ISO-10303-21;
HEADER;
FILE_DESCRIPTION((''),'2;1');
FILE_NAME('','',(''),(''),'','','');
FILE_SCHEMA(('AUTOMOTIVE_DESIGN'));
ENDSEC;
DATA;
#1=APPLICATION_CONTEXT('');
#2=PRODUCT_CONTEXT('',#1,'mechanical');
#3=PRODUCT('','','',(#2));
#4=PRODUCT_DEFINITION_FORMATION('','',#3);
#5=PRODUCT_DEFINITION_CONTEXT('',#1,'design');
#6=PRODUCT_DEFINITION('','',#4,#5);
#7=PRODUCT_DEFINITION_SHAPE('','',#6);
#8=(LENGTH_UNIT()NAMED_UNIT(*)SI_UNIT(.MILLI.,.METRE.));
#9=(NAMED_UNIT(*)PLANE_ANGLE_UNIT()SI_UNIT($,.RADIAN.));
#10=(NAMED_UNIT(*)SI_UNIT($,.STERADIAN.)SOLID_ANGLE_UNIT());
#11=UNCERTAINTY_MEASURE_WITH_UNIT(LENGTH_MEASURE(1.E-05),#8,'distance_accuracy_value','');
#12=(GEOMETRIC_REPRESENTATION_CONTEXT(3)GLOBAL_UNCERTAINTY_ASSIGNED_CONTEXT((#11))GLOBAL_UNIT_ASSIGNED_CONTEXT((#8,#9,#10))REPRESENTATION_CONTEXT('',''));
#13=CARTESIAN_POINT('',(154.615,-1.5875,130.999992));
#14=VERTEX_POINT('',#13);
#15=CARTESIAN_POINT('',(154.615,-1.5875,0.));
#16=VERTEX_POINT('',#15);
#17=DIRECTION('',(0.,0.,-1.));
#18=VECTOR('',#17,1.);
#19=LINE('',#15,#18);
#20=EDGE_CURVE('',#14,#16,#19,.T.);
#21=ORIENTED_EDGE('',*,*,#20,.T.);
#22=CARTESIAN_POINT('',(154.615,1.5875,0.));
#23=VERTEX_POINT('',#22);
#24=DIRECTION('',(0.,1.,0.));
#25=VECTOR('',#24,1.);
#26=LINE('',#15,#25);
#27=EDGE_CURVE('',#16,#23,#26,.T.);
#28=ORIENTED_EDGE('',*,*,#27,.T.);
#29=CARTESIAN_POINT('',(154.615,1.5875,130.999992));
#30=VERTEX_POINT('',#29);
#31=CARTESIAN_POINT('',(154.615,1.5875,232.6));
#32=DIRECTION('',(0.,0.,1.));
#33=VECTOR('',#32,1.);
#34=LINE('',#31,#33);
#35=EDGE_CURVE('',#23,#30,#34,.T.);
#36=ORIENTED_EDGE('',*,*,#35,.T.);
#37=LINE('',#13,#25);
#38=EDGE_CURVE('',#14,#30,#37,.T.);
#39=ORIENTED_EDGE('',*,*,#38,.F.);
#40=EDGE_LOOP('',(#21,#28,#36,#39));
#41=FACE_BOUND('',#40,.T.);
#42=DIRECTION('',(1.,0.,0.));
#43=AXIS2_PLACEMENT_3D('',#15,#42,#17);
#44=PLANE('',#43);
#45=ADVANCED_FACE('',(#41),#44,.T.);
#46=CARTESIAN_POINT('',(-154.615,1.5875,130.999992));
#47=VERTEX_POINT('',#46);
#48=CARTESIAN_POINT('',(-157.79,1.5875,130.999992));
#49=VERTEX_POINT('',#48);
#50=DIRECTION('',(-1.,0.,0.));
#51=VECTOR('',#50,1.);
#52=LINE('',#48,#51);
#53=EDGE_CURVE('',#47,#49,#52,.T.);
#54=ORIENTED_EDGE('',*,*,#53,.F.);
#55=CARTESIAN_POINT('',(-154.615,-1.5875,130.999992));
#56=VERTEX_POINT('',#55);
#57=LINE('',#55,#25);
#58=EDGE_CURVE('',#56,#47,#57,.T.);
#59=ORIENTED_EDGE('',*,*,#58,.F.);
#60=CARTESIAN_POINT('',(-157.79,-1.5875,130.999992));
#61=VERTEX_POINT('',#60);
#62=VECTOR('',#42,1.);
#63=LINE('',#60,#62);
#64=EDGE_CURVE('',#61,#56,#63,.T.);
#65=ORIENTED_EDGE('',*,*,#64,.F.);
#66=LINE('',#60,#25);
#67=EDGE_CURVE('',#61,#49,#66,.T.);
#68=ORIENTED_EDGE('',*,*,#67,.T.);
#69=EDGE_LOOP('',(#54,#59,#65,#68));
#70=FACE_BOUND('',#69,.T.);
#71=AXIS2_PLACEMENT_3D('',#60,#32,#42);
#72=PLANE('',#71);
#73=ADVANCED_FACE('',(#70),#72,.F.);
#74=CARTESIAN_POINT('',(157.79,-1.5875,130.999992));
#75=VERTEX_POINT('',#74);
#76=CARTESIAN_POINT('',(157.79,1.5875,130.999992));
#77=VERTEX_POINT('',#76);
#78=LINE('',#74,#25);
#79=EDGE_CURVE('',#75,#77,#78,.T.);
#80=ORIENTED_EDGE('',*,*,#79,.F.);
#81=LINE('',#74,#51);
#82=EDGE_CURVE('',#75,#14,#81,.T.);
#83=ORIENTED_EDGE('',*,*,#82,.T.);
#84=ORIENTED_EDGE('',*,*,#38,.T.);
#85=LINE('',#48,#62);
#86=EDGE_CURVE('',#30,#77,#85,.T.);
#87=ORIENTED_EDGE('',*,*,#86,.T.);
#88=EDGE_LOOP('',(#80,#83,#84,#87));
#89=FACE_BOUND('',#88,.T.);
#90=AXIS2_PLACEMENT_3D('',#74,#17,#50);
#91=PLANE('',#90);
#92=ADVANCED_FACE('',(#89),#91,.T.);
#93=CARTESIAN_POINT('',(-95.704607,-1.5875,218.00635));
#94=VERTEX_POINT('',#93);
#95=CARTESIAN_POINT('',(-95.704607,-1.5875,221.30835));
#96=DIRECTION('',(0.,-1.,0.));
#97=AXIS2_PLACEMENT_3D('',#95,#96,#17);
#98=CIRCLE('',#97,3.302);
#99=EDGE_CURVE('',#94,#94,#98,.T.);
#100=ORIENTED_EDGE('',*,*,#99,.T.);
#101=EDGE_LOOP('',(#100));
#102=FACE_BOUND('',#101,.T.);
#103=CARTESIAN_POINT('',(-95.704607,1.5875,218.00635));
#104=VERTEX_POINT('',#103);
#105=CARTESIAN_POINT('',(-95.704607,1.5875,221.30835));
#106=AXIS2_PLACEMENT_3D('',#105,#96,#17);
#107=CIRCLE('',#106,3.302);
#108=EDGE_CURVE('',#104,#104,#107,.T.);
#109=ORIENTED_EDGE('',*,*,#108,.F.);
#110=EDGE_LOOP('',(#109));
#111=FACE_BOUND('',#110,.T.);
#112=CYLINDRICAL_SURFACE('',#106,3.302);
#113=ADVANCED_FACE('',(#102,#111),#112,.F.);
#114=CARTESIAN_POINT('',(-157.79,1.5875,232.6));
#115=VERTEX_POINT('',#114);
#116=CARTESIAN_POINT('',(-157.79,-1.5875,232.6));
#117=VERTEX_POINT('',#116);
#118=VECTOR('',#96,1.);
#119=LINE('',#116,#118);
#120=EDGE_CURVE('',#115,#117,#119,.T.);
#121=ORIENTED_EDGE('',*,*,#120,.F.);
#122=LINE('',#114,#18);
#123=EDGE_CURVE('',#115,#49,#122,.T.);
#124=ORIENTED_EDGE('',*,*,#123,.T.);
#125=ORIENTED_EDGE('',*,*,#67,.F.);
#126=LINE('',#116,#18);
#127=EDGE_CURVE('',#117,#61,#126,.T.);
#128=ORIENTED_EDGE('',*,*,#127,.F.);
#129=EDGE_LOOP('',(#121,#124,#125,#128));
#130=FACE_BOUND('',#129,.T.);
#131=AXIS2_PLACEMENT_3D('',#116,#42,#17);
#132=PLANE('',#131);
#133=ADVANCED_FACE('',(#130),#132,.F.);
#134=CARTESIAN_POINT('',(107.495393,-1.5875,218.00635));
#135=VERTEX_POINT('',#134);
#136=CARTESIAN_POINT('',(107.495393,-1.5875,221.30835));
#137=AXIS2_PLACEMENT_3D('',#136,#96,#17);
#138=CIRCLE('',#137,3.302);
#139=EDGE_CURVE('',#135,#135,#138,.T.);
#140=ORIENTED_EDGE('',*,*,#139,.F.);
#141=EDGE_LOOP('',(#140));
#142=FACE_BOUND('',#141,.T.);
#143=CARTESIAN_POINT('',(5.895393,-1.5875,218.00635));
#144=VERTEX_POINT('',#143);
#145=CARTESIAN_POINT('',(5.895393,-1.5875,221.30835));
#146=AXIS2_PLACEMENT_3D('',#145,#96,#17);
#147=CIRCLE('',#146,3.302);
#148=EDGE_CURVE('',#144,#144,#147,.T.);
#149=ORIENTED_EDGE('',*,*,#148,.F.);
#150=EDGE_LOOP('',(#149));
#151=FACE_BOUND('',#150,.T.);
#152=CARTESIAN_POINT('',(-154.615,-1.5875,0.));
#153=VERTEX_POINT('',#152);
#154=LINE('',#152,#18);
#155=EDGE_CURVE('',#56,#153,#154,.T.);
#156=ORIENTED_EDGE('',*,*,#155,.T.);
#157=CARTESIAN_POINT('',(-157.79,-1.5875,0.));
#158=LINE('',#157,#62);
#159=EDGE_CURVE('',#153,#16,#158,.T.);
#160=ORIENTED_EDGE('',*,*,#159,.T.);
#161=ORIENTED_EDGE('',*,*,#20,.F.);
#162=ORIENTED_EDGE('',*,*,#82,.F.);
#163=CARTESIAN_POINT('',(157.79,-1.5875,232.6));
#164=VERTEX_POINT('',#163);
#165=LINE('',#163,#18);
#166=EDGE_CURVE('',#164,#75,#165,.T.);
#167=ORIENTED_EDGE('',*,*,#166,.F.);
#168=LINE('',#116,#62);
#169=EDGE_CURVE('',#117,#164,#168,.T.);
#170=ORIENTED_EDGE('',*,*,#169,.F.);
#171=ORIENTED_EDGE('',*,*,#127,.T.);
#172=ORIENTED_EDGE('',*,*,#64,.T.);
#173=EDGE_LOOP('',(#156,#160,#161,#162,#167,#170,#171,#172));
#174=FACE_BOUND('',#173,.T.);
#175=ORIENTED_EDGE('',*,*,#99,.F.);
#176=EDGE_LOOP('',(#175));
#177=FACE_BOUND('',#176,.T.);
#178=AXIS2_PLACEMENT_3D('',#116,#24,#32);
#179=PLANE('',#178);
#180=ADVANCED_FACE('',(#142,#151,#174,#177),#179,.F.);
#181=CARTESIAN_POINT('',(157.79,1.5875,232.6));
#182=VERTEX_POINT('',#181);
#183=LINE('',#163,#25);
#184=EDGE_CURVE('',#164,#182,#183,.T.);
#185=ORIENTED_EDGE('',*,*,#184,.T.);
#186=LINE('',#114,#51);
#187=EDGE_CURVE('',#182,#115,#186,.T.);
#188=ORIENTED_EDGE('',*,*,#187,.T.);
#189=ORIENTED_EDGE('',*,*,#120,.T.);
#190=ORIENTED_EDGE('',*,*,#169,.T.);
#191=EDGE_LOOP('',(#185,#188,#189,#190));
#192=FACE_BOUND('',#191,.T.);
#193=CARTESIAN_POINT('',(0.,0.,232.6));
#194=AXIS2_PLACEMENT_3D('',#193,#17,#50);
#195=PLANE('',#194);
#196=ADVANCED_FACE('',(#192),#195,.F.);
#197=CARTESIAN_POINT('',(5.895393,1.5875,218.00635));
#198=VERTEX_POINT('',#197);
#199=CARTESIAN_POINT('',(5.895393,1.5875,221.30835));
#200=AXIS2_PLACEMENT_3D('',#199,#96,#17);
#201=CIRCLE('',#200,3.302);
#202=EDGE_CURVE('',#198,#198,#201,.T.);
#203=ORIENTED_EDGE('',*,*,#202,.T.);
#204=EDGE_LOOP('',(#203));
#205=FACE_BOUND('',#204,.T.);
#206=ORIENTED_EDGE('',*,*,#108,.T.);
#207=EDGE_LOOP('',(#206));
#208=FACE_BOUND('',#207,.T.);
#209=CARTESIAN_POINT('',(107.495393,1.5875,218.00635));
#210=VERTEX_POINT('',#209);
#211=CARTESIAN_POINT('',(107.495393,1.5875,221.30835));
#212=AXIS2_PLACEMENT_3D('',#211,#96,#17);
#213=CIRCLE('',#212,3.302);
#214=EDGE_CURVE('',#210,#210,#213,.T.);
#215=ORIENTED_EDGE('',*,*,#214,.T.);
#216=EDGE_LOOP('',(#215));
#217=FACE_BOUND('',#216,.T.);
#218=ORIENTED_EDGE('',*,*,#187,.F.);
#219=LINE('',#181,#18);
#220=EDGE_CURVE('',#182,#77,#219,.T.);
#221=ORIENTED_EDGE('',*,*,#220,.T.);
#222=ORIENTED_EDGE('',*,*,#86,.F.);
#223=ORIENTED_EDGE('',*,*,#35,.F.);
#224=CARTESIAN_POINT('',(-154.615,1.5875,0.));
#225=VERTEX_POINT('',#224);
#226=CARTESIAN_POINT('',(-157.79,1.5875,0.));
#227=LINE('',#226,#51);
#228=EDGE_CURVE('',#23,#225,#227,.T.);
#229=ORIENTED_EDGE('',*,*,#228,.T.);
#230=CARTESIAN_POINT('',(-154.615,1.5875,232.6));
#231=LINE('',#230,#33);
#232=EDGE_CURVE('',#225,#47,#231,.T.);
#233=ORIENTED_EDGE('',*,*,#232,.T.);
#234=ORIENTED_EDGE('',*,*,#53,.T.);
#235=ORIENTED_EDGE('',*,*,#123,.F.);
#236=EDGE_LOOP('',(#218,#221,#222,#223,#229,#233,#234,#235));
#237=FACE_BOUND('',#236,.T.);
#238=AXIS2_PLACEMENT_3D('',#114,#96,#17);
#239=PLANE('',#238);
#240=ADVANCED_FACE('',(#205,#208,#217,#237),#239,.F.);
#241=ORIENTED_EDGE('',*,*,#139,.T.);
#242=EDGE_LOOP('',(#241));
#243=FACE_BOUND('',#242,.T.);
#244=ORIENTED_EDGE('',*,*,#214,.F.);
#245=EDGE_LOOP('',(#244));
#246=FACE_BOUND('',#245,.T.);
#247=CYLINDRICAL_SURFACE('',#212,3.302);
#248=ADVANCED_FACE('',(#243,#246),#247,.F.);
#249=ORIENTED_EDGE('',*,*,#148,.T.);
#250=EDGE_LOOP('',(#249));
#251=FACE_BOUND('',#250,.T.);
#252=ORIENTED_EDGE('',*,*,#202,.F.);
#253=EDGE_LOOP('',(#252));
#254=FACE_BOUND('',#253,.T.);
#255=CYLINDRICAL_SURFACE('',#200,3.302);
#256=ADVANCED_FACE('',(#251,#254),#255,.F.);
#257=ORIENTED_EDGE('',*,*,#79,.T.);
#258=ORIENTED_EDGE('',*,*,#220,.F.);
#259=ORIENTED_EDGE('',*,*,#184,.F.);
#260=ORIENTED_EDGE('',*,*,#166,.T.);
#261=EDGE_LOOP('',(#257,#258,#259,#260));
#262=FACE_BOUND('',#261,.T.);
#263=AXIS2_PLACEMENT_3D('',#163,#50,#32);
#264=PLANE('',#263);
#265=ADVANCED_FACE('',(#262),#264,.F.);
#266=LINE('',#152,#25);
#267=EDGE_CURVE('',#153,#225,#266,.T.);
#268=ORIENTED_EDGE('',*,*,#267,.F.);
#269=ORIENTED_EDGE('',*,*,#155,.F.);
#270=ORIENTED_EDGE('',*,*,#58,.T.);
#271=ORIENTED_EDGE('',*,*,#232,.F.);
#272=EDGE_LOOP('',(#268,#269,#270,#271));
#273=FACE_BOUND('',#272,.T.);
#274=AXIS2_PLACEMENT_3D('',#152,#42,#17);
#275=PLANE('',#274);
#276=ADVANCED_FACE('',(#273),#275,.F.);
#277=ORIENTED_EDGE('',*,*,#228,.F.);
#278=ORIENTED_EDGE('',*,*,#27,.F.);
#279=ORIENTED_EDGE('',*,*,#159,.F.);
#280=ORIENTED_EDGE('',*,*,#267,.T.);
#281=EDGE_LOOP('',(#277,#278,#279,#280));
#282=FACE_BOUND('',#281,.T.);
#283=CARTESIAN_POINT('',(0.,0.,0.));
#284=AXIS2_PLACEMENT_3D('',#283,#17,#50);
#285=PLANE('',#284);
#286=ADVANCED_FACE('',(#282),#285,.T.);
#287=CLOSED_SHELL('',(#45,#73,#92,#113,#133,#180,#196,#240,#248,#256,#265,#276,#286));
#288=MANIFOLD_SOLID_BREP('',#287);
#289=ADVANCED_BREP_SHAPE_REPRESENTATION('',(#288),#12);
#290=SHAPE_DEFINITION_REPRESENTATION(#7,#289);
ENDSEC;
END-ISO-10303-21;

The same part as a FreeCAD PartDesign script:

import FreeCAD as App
import Part
import Sketcher

V = App.Vector
Q = App.Units.Quantity

doc = App.newDocument("Part")
params = doc.addObject("Spreadsheet::Sheet", "Params")
for row, (alias, value) in enumerate([
    ("sketch1_height", "0.125 in"),
    ("pad1_length", "232.6 mm"),
    ("sketch2_width", "0.125 in"),
    ("pocket1_length", "564.176217 mm"),
    ("sketch3_diameter", "0.26 in"),
    ("linearpattern_pitch", "4 in"),
], start=1):
    params.set(f"A{row}", alias)
    params.set(f"B{row}", "=" + value)
    params.setAlias(f"B{row}", alias)

body = doc.addObject("PartDesign::Body", "Body")

# Sketch on XY plane
sketch1 = body.newObject("Sketcher::SketchObject", "Sketch")
sketch1.AttachmentSupport = (doc.getObject("XY_Plane"), [""])
sketch1.MapMode = "FlatFace"
sketch1.addGeometry(Part.LineSegment(V(-157.8, 1.6, 0), V(-157.8, -1.6, 0)), False)
sketch1.addGeometry(Part.LineSegment(V(-157.8, -1.6, 0), V(157.8, -1.6, 0)), False)
sketch1.addGeometry(Part.LineSegment(V(157.8, -1.6, 0), V(157.8, 1.6, 0)), False)
sketch1.addGeometry(Part.LineSegment(V(157.8, 1.6, 0), V(-157.8, 1.6, 0)), False)
sketch1.addConstraint(Sketcher.Constraint("Coincident", 0, 2, 1, 1))
sketch1.addConstraint(Sketcher.Constraint("Coincident", 1, 2, 2, 1))
sketch1.addConstraint(Sketcher.Constraint("Coincident", 2, 2, 3, 1))
sketch1.addConstraint(Sketcher.Constraint("Coincident", 3, 2, 0, 1))
sketch1.addConstraint(Sketcher.Constraint("Vertical", 0))
sketch1.addConstraint(Sketcher.Constraint("Horizontal", 1))
sketch1.addConstraint(Sketcher.Constraint("Vertical", 2))
sketch1.addConstraint(Sketcher.Constraint("Horizontal", 3))
sketch1.addConstraint(Sketcher.Constraint("Symmetric", 0, 2, 2, 2, -1, 1))
sketch1.addConstraint(Sketcher.Constraint("DistanceY", 0, 2, 0, 1, Q("0.125 in")))
sketch1.addConstraint(Sketcher.Constraint("DistanceX", 1, 1, 1, 2, Q("315.58 mm")))
sketch1.setExpression("Constraints[9]", "Params.sketch1_height")
pad1 = body.newObject("PartDesign::Pad", "Pad")
pad1.Profile = sketch1
pad1.setExpression("Length", "Params.pad1_length")

# Sketch on XZ plane
sketch2 = body.newObject("Sketcher::SketchObject", "Sketch001")
sketch2.AttachmentSupport = (doc.getObject("XZ_Plane"), [""])
sketch2.MapMode = "FlatFace"
sketch2.AttachmentOffset = App.Placement(V(0, 0, -0.0625 * 25.4), App.Rotation())
sketch2.addGeometry(Part.LineSegment(V(-157.8, 0, 0), V(-157.8, 131, 0)), False)
sketch2.addGeometry(Part.LineSegment(V(-157.8, 131, 0), V(-154.6, 131, 0)), False)
sketch2.addGeometry(Part.LineSegment(V(-154.6, 131, 0), V(-154.6, 0, 0)), False)
sketch2.addGeometry(Part.LineSegment(V(-154.6, 0, 0), V(-157.8, 0, 0)), False)
sketch2.addConstraint(Sketcher.Constraint("Coincident", 0, 2, 1, 1))
sketch2.addConstraint(Sketcher.Constraint("Coincident", 1, 2, 2, 1))
sketch2.addConstraint(Sketcher.Constraint("Coincident", 2, 2, 3, 1))
sketch2.addConstraint(Sketcher.Constraint("Coincident", 3, 2, 0, 1))
sketch2.addConstraint(Sketcher.Constraint("Vertical", 0))
sketch2.addConstraint(Sketcher.Constraint("Horizontal", 1))
sketch2.addConstraint(Sketcher.Constraint("Vertical", 2))
sketch2.addConstraint(Sketcher.Constraint("Horizontal", 3))
sketch2.addConstraint(Sketcher.Constraint("PointOnObject", 2, 2, -1))
sketch2.addConstraint(Sketcher.Constraint("DistanceX", 1, 1, 1, 2, Q("0.125 in")))
sketch2.addConstraint(Sketcher.Constraint("DistanceY", 0, 1, 0, 2, Q("130.999992 mm")))
sketch2.addConstraint(Sketcher.Constraint("DistanceX", 0, 2, -1, 1, Q("157.79 mm")))
sketch2.setExpression("Constraints[9]", "Params.sketch2_width")
pocket1 = body.newObject("PartDesign::Pocket", "Pocket")
pocket1.Profile = sketch2
pocket1.setExpression("Length", "Params.pocket1_length")
pocket1.Midplane = True
doc.recompute()

mirrored = body.newObject("PartDesign::Mirrored", "Mirrored")
mirrored.Originals = [pocket1]
mirrored.MirrorPlane = (doc.getObject("YZ_Plane"), [""])
body.Tip = mirrored

# Sketch on XZ plane
sketch3 = body.newObject("Sketcher::SketchObject", "Sketch002")
sketch3.AttachmentSupport = (doc.getObject("XZ_Plane"), [""])
sketch3.MapMode = "FlatFace"
sketch3.AttachmentOffset = App.Placement(V(0, 0, 0.0625 * 25.4), App.Rotation())
sketch3.addGeometry(Part.Circle(V(107.5, 221.3, 0), V(0, 0, 1), 3.3), False)
sketch3.addConstraint(Sketcher.Constraint("Diameter", 0, Q("0.26 in")))
sketch3.addConstraint(Sketcher.Constraint("DistanceY", -1, 1, 0, 3, Q("221.30835 mm")))
sketch3.addConstraint(Sketcher.Constraint("DistanceX", -1, 1, 0, 3, Q("107.495393 mm")))
sketch3.setExpression("Constraints[0]", "Params.sketch3_diameter")
pocket2 = body.newObject("PartDesign::Pocket", "Pocket001")
pocket2.Profile = sketch3
pocket2.Type = "ThroughAll"
doc.recompute()

linearpattern = body.newObject("PartDesign::LinearPattern", "LinearPattern")
linearpattern.Originals = [pocket2]
linearpattern.Direction = (doc.getObject("X_Axis"), [""])
linearpattern.Mode = "offset"
linearpattern.setExpression("Offset", "Params.linearpattern_pitch")
linearpattern.Occurrences = 3
linearpattern.Reversed = True
body.Tip = linearpattern

doc.recompute()
